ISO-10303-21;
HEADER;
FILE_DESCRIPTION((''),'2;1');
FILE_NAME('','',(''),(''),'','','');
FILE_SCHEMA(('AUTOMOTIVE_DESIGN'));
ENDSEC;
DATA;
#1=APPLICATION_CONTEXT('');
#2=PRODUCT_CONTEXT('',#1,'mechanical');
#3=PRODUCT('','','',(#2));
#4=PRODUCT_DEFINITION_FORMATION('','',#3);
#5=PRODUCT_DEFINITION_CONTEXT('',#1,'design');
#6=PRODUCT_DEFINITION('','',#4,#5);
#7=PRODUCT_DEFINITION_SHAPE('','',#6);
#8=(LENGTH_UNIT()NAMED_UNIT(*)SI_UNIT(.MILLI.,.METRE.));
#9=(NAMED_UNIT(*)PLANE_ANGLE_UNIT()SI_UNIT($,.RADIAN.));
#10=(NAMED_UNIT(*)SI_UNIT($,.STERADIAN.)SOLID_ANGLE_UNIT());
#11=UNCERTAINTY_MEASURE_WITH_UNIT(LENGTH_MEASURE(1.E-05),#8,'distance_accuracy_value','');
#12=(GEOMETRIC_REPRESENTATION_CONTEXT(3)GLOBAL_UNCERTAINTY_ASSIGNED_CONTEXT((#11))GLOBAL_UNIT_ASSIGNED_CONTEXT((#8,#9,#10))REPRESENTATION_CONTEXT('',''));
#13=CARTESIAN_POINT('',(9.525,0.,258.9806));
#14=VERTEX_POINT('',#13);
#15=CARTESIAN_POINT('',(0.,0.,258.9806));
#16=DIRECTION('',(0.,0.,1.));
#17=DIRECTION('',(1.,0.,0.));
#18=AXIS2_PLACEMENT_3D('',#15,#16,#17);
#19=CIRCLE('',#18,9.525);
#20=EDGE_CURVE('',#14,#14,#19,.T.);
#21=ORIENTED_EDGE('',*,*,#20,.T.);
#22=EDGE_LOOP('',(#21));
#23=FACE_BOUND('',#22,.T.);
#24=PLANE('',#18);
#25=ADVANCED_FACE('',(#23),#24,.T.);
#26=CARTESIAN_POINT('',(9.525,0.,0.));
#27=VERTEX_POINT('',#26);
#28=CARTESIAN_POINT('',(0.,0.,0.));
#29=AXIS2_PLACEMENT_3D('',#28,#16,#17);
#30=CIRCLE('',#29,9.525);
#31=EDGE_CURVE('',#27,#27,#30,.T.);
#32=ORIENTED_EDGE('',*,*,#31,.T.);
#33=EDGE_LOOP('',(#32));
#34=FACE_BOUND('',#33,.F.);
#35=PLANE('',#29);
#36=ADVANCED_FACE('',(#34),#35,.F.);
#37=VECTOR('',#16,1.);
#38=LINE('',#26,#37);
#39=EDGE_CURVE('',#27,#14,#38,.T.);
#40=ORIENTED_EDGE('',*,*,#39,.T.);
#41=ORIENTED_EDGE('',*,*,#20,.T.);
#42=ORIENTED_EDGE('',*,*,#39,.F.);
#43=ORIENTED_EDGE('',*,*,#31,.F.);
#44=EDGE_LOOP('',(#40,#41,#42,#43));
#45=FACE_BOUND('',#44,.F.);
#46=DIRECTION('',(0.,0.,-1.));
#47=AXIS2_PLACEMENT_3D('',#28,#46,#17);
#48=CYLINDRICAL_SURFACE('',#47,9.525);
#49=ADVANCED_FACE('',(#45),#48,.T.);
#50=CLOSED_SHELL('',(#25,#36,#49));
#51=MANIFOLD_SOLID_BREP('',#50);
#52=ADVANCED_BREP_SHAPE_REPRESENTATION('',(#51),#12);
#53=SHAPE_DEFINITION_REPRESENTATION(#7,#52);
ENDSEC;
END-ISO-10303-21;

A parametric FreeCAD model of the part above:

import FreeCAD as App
import Part
import Sketcher

V = App.Vector
Q = App.Units.Quantity

doc = App.newDocument("Part")
body = doc.addObject("PartDesign::Body", "Body")

# Sketch on XY plane
sketch1 = body.newObject("Sketcher::SketchObject", "Sketch")
sketch1.AttachmentSupport = (doc.getObject("XY_Plane"), [""])
sketch1.MapMode = "FlatFace"
sketch1.addGeometry(Part.Circle(V(0, 0, 0), V(0, 0, 1), 10), False)
sketch1.addConstraint([
    Sketcher.Constraint("Coincident", 0, 3, -1, 1),
    Sketcher.Constraint("Diameter", 0, Q("0.75 in")),
])
pad1 = body.newObject("PartDesign::Pad", "Pad")
pad1.Profile = sketch1
pad1.Length = 258.9806

doc.recompute()
